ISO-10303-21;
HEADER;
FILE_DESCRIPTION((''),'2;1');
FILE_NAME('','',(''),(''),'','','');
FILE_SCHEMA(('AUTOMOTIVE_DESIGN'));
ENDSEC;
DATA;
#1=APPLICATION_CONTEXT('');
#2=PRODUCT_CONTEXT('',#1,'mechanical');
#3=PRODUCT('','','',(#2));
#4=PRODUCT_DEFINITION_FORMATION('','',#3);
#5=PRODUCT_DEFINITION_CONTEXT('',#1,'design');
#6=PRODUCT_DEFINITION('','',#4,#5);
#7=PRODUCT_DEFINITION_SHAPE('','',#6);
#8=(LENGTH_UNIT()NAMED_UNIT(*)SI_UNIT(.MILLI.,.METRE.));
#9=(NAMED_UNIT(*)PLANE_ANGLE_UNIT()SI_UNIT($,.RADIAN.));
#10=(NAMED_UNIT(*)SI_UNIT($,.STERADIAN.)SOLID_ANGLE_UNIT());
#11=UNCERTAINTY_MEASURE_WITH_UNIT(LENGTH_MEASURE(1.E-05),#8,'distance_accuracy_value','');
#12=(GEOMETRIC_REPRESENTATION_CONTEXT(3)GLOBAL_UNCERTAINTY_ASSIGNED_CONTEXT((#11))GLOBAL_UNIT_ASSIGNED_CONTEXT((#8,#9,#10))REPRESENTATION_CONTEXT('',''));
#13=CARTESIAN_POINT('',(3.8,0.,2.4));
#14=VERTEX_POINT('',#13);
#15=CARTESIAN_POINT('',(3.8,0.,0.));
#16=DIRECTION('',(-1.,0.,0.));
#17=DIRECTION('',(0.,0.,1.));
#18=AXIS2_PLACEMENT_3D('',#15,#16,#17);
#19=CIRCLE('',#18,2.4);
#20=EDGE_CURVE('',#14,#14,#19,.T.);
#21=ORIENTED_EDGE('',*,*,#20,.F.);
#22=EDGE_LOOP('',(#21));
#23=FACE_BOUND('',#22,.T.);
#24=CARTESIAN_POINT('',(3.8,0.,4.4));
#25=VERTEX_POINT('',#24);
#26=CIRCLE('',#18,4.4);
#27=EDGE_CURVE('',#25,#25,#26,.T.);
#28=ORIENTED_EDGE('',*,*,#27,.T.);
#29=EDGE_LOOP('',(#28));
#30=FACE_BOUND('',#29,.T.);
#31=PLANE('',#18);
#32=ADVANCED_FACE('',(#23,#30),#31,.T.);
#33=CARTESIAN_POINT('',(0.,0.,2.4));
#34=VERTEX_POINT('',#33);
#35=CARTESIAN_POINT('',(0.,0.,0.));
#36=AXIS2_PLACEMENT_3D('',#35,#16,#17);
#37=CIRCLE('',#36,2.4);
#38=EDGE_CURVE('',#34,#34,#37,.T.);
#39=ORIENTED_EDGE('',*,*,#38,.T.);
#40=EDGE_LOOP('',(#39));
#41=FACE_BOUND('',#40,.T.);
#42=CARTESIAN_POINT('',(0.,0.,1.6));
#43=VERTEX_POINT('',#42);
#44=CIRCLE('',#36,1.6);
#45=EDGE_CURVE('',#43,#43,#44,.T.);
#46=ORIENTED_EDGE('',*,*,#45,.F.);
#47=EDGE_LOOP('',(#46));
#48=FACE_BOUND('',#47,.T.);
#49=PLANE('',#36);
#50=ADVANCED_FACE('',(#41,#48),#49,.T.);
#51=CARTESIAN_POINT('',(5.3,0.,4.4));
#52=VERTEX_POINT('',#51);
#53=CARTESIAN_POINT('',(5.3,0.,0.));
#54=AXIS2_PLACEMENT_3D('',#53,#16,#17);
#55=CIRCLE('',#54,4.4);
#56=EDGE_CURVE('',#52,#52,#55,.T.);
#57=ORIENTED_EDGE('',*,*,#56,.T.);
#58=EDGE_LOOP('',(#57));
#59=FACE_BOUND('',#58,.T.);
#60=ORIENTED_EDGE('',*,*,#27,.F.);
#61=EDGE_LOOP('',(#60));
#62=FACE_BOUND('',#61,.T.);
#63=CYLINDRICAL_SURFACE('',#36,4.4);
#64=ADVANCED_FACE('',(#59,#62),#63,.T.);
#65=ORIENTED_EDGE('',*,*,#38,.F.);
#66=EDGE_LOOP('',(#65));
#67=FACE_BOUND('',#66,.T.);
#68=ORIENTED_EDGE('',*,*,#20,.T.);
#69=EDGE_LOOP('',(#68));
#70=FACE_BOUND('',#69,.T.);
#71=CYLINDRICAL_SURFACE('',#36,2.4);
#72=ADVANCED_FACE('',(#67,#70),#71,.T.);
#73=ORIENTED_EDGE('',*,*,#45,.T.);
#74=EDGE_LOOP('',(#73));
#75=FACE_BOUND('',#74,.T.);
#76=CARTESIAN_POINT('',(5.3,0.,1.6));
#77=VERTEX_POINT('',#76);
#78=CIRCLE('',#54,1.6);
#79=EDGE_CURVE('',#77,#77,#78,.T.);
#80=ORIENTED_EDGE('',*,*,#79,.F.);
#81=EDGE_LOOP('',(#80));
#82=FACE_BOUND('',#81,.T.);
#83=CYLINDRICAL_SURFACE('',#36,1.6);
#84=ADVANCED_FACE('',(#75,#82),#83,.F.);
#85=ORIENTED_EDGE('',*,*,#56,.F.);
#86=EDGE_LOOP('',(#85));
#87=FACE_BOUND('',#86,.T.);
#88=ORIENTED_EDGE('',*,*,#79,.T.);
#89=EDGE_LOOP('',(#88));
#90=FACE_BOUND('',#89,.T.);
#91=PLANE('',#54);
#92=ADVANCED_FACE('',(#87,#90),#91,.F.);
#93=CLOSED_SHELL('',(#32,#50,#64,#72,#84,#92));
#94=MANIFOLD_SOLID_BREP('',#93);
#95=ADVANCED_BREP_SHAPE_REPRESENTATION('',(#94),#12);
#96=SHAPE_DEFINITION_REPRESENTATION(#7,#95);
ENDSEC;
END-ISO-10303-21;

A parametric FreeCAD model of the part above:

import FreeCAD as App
import Part
import Sketcher
from FreeCAD import Vector
Q = App.Units.Quantity

doc = App.newDocument("Part")
body = doc.addObject("PartDesign::Body", "Body")

# Sketch on XY plane
sketch1 = body.newObject("Sketcher::SketchObject", "Sketch")
sketch1.AttachmentSupport = (doc.getObject("XY_Plane"), [""])
sketch1.MapMode = "FlatFace"
sketch1.addGeometry(Part.LineSegment(Vector(0, 2.4, 0), Vector(0, 1.6, 0)), False)
sketch1.addGeometry(Part.LineSegment(Vector(0, 1.6, 0), Vector(5.3, 1.6, 0)), False)
sketch1.addGeometry(Part.LineSegment(Vector(5.3, 1.6, 0), Vector(5.3, 4.4, 0)), False)
sketch1.addGeometry(Part.LineSegment(Vector(5.3, 4.4, 0), Vector(3.8, 4.4, 0)), False)
sketch1.addGeometry(Part.LineSegment(Vector(3.8, 4.4, 0), Vector(3.8, 2.4, 0)), False)
sketch1.addGeometry(Part.LineSegment(Vector(3.8, 2.4, 0), Vector(0, 2.4, 0)), False)
sketch1.addConstraint(Sketcher.Constraint("Coincident", 0, 2, 1, 1))
sketch1.addConstraint(Sketcher.Constraint("Coincident", 1, 2, 2, 1))
sketch1.addConstraint(Sketcher.Constraint("Coincident", 2, 2, 3, 1))
sketch1.addConstraint(Sketcher.Constraint("Coincident", 3, 2, 4, 1))
sketch1.addConstraint(Sketcher.Constraint("Coincident", 4, 2, 5, 1))
sketch1.addConstraint(Sketcher.Constraint("Coincident", 5, 2, 0, 1))
sketch1.addConstraint(Sketcher.Constraint("Vertical", 0))
sketch1.addConstraint(Sketcher.Constraint("Horizontal", 1))
sketch1.addConstraint(Sketcher.Constraint("Vertical", 2))
sketch1.addConstraint(Sketcher.Constraint("Horizontal", 3))
sketch1.addConstraint(Sketcher.Constraint("Vertical", 4))
sketch1.addConstraint(Sketcher.Constraint("Horizontal", 5))
sketch1.addConstraint(Sketcher.Constraint("PointOnObject", 0, 2, -2))
sketch1.addConstraint(Sketcher.Constraint("DistanceY", 4, 2, 4, 1, Q("2 mm")))
sketch1.addConstraint(Sketcher.Constraint("DistanceX", 1, 1, 1, 2, Q("5.3 mm")))
sketch1.addConstraint(Sketcher.Constraint("DistanceX", 3, 2, 3, 1, Q("1.5 mm")))
sketch1.addConstraint(Sketcher.Constraint("DistanceY", 0, 2, 0, 1, Q("0.8 mm")))
sketch1.addConstraint(Sketcher.Constraint("DistanceY", -1, 1, 0, 2, Q("1.6 mm")))
revolution = body.newObject("PartDesign::Revolution", "Revolution")
revolution.Profile = sketch1
revolution.ReferenceAxis = (sketch1, ["H_Axis"])
revolution.Angle = 360

doc.recompute()
